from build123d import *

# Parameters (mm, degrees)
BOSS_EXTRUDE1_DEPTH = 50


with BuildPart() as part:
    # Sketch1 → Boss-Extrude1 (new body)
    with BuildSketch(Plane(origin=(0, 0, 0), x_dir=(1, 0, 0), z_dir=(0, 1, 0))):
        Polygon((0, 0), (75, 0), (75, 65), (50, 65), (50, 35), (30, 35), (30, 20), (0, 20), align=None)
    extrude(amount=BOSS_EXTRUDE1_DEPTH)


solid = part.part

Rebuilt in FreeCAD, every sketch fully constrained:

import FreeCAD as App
import Part
import Sketcher
from FreeCAD import Vector


def add_polygon(sketch, points):
    """Adds a closed chain of lines whose ends are joined by coincident constraints."""
    first, n = sketch.GeometryCount, len(points)
    for a, b in zip(points, points[1:] + points[:1]):
        sketch.addGeometry(Part.LineSegment(App.Vector(*a, 0), App.Vector(*b, 0)), False)
    for i in range(n):
        sketch.addConstraint(Sketcher.Constraint("Coincident", first + i, 2, first + (i + 1) % n, 1))

doc = App.newDocument("Part")
params = doc.addObject("Spreadsheet::Sheet", "Params")
for row, (alias, value) in enumerate([
    ("sketch1_width", "75 mm"),
    ("sketch1_width2", "25 mm"),
    ("sketch1_width3", "20 mm"),
    ("sketch1_height", "65 mm"),
    ("pad1_length", "50 mm"),
], start=1):
    params.set(f"A{row}", alias)
    params.set(f"B{row}", "=" + value)
    params.setAlias(f"B{row}", alias)

body = doc.addObject("PartDesign::Body", "Body")

sketch1 = body.newObject("Sketcher::SketchObject", "Sketch")
sketch1.AttachmentSupport = (doc.getObject("XZ_Plane"), [""])
sketch1.MapMode = "FlatFace"
add_polygon(sketch1, [(0, 0), (75, 0), (75, -65), (50, -65), (50, -35), (30, -35), (30, -20), (0, -20)])
sketch1.addConstraint([
    Sketcher.Constraint("Horizontal", 0),
    Sketcher.Constraint("Vertical", 1),
    Sketcher.Constraint("Horizontal", 2),
    Sketcher.Constraint("Vertical", 3),
    Sketcher.Constraint("Horizontal", 4),
    Sketcher.Constraint("Vertical", 5),
    Sketcher.Constraint("Horizontal", 6),
    Sketcher.Constraint("Vertical", 7),
    Sketcher.Constraint("Coincident", 7, 2, -1, 1),
    Sketcher.Constraint("Equal", 6, 3),
    Sketcher.Constraint("Equal", 4, 7),
    Sketcher.Constraint("DistanceX", 0, 1, 0, 2, 75.0),
    Sketcher.Constraint("DistanceX", 2, 2, 2, 1, 25.0),
    Sketcher.Constraint("DistanceX", 4, 2, 4, 1, 20.0),
    Sketcher.Constraint("DistanceY", 1, 2, 1, 1, 65.0),
])
sketch1.setExpression("Constraints[19]", "Params.sketch1_width")
sketch1.setExpression("Constraints[20]", "Params.sketch1_width2")
sketch1.setExpression("Constraints[21]", "Params.sketch1_width3")
sketch1.setExpression("Constraints[22]", "Params.sketch1_height")
pad1 = body.newObject("PartDesign::Pad", "Pad")
pad1.Profile = sketch1
pad1.setExpression("Length", "Params.pad1_length")
pad1.Reversed = True

doc.recompute()
